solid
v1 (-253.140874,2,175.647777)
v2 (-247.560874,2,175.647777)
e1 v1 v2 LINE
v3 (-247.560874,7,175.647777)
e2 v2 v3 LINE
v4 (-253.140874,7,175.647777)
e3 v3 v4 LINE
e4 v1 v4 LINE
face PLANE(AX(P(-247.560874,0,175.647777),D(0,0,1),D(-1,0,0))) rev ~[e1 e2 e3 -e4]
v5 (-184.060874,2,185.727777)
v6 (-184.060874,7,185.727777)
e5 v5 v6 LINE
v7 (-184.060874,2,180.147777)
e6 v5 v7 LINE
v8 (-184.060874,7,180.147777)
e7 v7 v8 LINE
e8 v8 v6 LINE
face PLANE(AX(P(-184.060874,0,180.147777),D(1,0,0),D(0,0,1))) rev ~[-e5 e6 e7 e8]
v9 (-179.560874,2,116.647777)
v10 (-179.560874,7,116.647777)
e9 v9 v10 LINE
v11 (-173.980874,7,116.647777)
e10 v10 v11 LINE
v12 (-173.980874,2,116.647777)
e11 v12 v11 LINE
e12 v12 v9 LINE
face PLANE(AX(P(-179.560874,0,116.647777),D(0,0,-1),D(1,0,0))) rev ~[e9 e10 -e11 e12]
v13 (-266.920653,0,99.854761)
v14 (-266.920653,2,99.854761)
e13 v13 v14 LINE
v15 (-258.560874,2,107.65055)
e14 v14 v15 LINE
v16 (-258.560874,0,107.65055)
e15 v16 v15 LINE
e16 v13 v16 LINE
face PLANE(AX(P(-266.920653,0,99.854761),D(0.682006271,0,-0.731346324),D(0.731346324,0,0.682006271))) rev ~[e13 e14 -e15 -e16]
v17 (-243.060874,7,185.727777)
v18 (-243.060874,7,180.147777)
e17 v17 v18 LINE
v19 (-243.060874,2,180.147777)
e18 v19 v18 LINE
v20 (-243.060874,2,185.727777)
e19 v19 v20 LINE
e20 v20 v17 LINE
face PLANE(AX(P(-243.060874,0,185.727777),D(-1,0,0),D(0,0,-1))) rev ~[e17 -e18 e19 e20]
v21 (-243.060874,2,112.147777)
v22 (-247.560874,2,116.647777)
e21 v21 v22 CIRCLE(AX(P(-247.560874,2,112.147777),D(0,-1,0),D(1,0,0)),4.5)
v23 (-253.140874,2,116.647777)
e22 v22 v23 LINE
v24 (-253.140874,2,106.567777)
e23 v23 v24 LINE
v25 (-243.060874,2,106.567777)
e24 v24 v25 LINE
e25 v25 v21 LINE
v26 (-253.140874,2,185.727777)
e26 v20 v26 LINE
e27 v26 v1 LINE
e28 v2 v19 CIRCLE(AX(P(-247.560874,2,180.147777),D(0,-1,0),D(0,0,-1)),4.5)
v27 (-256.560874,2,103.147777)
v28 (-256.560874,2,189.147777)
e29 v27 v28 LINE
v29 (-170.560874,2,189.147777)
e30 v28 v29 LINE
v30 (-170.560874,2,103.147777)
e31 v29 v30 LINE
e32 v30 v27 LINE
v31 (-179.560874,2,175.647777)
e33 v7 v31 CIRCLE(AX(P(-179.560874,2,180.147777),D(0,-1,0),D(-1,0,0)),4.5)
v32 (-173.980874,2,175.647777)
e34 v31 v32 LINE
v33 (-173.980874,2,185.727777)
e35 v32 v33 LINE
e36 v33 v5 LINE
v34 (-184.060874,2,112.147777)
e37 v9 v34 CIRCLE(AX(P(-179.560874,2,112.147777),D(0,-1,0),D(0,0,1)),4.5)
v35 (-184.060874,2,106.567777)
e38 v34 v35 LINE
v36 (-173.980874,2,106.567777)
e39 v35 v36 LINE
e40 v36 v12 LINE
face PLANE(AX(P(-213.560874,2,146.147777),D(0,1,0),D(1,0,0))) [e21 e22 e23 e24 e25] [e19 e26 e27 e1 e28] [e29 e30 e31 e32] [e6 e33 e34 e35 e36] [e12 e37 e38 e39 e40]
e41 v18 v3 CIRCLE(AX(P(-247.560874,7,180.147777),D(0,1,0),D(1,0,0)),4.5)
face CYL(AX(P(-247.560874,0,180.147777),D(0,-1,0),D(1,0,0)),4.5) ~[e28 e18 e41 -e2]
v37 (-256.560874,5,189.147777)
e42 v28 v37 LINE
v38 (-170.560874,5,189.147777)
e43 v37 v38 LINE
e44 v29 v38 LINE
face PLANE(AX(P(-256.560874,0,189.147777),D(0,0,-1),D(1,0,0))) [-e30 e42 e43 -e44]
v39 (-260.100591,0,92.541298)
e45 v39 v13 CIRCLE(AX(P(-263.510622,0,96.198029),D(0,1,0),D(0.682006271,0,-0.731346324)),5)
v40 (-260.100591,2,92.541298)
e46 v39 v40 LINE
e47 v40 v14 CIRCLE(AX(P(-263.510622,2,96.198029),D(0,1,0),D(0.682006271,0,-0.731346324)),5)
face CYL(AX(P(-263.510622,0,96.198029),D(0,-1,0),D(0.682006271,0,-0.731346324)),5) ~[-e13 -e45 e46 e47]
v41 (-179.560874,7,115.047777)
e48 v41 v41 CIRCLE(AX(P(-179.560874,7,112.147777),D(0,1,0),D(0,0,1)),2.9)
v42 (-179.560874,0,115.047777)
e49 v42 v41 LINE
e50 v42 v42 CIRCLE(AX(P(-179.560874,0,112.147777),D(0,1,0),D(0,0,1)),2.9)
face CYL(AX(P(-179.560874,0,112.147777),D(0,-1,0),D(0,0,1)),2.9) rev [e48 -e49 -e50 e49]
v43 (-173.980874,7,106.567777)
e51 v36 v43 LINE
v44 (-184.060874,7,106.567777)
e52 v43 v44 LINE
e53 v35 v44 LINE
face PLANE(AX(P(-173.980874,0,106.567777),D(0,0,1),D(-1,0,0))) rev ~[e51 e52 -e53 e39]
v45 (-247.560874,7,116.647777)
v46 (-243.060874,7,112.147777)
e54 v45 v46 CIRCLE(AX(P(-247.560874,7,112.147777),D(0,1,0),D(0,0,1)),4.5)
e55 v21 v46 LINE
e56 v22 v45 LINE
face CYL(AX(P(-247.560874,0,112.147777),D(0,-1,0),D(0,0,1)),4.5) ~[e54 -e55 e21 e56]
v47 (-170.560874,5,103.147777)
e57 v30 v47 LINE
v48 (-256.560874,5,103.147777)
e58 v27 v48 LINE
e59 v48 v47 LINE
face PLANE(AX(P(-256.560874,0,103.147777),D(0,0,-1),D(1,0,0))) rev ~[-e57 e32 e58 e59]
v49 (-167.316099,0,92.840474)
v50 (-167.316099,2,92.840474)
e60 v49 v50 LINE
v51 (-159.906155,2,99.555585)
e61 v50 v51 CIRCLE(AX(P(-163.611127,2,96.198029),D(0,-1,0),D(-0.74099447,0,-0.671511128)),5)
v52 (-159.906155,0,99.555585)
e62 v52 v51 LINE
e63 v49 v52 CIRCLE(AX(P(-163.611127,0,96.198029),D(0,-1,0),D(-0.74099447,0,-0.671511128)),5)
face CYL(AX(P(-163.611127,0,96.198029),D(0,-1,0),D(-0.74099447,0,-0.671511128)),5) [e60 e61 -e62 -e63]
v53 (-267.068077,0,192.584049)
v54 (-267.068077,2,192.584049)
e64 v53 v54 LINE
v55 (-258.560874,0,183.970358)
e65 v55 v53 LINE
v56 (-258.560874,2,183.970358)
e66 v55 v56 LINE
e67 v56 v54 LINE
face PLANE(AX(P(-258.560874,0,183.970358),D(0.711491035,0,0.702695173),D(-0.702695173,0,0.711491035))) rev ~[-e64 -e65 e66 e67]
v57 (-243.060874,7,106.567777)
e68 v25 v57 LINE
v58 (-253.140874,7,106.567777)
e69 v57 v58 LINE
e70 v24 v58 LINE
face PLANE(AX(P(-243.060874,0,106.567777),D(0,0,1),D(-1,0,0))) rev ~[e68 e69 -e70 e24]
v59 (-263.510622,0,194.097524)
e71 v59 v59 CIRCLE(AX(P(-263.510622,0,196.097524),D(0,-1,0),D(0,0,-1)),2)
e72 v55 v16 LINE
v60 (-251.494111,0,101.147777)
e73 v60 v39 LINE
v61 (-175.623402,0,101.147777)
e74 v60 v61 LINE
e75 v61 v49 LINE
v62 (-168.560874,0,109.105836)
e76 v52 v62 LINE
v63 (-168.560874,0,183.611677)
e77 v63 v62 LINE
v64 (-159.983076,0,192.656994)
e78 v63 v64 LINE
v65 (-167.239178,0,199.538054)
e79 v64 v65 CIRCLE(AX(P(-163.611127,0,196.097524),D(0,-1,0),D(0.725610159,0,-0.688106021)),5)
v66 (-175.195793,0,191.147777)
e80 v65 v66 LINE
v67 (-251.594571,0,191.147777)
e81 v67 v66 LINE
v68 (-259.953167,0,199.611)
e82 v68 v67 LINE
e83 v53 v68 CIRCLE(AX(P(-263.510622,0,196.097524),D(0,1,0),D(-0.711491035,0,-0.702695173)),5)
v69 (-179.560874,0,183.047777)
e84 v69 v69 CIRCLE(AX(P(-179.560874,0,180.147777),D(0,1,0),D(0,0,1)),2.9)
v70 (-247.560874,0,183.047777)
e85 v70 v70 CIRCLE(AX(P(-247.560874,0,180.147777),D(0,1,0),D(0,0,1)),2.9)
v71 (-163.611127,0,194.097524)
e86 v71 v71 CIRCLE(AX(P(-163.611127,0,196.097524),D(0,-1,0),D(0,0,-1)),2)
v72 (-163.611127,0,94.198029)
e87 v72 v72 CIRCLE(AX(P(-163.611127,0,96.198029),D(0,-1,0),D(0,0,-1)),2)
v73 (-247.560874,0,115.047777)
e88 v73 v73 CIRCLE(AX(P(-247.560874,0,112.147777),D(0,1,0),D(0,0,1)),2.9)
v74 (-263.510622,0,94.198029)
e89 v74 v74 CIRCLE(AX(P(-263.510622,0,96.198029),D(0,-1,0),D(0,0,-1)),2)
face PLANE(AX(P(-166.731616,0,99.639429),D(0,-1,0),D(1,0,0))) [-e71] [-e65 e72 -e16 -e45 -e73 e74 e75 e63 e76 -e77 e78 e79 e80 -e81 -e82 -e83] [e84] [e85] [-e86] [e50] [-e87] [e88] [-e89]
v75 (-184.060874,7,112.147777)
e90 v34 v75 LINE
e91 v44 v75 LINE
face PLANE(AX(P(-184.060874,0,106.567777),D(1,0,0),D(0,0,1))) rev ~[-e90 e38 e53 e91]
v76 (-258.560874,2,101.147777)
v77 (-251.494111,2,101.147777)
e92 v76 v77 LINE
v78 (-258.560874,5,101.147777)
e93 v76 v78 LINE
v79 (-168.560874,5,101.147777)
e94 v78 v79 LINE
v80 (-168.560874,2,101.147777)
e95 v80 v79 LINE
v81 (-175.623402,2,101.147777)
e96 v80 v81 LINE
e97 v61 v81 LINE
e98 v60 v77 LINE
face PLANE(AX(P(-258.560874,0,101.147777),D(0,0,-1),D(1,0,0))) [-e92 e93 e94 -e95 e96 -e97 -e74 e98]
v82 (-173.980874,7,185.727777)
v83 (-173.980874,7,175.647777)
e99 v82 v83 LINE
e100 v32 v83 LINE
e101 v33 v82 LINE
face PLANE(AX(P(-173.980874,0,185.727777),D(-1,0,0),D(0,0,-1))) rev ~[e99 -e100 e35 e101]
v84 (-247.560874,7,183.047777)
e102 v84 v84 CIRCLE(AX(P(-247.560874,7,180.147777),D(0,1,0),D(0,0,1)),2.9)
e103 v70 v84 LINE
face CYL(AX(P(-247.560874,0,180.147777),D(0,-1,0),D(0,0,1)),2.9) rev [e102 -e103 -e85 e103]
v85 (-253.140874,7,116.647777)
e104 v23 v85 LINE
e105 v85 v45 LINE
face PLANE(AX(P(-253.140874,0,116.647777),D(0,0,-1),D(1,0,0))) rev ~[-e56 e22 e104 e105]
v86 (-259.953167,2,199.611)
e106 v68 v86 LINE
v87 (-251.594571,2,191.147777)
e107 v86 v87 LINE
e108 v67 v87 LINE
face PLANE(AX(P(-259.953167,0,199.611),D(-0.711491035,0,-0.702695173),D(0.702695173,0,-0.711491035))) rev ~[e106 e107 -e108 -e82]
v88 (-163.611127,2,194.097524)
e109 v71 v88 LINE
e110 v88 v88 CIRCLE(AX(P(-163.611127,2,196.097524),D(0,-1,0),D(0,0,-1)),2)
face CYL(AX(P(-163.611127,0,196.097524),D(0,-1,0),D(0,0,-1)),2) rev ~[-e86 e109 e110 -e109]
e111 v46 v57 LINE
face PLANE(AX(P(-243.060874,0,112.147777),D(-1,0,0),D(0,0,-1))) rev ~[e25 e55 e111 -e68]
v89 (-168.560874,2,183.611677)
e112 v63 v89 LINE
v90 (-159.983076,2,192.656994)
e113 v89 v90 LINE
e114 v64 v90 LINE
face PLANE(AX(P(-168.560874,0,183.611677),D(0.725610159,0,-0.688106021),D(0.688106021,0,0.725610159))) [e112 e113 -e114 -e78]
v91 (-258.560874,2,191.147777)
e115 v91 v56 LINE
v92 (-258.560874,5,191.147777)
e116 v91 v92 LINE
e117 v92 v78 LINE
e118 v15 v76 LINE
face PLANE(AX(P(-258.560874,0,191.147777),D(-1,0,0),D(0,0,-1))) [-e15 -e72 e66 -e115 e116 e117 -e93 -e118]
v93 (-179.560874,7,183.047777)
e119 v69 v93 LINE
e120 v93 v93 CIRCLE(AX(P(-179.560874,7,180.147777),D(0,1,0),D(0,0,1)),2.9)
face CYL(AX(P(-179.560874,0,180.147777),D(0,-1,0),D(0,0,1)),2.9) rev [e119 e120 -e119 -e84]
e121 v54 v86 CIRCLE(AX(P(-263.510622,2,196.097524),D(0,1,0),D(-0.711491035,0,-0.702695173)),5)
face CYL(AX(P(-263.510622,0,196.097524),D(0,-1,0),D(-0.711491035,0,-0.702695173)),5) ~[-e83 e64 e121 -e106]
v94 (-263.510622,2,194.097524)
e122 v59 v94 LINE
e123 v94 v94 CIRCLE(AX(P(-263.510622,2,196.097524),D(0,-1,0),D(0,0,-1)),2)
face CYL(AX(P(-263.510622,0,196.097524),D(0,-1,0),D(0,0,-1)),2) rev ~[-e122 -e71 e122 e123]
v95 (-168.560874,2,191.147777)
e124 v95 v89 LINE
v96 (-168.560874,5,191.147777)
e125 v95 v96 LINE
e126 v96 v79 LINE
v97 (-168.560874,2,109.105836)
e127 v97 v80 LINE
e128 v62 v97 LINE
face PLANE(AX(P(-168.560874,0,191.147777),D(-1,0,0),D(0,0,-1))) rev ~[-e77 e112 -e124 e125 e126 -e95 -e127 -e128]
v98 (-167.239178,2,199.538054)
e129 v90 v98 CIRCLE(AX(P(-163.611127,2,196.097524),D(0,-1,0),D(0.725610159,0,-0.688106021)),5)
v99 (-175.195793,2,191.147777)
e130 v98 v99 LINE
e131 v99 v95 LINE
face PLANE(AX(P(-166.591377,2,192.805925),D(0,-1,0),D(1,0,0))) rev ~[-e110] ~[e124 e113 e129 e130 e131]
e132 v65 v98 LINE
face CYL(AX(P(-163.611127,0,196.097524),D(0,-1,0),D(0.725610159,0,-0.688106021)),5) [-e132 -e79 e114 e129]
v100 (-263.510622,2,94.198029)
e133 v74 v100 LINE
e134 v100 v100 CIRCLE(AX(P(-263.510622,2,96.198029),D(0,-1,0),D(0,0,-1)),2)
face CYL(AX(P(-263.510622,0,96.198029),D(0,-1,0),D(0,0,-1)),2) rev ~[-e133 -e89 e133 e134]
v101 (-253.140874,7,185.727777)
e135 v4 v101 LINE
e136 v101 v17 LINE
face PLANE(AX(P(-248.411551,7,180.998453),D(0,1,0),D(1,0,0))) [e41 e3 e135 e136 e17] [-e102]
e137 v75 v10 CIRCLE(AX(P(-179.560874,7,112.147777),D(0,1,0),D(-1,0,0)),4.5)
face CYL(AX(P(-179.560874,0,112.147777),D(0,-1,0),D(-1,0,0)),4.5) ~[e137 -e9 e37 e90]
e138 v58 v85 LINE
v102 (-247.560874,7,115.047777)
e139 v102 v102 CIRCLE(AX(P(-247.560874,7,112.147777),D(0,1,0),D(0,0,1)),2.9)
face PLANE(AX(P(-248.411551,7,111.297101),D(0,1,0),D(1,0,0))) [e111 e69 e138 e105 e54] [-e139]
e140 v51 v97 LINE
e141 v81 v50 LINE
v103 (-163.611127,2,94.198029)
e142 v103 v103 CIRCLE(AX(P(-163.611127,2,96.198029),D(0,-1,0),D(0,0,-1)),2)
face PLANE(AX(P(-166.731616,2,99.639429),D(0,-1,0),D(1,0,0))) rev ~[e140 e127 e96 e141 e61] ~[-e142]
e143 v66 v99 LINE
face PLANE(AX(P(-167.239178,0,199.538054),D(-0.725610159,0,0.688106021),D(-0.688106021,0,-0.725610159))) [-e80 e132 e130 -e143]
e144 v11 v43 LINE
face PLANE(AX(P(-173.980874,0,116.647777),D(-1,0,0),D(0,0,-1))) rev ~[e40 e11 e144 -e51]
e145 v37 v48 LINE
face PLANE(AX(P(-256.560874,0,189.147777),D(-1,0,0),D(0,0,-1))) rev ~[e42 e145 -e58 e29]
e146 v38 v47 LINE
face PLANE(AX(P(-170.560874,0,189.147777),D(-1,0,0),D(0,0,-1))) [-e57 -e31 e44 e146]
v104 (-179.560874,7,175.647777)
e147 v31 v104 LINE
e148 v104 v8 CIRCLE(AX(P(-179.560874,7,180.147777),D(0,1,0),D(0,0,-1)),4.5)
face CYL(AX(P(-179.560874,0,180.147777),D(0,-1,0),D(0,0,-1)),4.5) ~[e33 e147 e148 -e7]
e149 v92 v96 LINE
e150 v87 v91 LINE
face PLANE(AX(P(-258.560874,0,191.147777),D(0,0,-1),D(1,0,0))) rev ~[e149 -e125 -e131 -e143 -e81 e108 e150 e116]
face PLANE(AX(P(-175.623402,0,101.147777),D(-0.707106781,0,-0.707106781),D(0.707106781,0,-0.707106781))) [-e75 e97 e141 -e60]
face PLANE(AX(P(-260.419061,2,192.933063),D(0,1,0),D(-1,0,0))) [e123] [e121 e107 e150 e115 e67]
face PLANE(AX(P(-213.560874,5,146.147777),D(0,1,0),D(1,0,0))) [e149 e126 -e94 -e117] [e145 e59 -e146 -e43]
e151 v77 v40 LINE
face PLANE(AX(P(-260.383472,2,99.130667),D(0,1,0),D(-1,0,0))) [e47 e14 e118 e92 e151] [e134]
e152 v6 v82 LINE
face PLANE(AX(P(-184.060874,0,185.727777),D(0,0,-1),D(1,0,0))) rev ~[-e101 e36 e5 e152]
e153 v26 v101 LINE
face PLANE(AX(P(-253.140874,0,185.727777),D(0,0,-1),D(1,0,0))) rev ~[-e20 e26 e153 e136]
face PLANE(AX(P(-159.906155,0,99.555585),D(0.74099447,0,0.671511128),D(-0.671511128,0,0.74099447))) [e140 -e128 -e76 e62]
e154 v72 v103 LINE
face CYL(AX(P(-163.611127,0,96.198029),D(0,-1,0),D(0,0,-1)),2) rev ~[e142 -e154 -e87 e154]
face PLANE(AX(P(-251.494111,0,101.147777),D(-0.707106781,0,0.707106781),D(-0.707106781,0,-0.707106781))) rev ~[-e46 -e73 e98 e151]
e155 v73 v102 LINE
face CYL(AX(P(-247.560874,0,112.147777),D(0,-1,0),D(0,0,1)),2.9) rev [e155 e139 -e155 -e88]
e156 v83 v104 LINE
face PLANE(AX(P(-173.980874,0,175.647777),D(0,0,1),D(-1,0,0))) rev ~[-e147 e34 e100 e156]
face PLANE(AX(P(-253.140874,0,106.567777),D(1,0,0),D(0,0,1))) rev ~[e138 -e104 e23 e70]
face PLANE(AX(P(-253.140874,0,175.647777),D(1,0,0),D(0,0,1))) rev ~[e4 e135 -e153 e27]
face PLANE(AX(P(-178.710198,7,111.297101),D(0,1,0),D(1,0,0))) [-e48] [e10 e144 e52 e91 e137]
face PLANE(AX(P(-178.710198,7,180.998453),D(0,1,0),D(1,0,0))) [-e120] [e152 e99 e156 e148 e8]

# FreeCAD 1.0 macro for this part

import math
import FreeCAD as App
import Part
import Sketcher
Q = App.Units.Quantity


def add_polygon(sketch, points):
    """Adds a closed chain of lines whose ends are joined by coincident constraints."""
    first, n = sketch.GeometryCount, len(points)
    for a, b in zip(points, points[1:] + points[:1]):
        sketch.addGeometry(Part.LineSegment(App.Vector(*a, 0), App.Vector(*b, 0)), False)
    for i in range(n):
        sketch.addConstraint(Sketcher.Constraint("Coincident", first + i, 2, first + (i + 1) % n, 1))

doc = App.newDocument("Part")
body = doc.addObject("PartDesign::Body", "Body")

# Sketch on XZ plane
sketch1 = body.newObject("Sketcher::SketchObject", "Sketch")
sketch1.AttachmentSupport = (doc.getObject("XZ_Plane"), [""])
sketch1.MapMode = "FlatFace"
add_polygon(sketch1, [(-258.560874, 101.147777), (-258.560874, 191.147777), (-168.560874, 191.147777), (-168.560874, 101.147777)])  # lines 0-3
add_polygon(sketch1, [(-170.560874, 189.147777), (-256.560874, 189.147777), (-256.560874, 103.147777), (-170.560874, 103.147777)])  # lines 4-7
sketch1.addConstraint([
    Sketcher.Constraint("Vertical", 0),
    Sketcher.Constraint("Horizontal", 1),
    Sketcher.Constraint("Vertical", 2),
    Sketcher.Constraint("Horizontal", 3),
    Sketcher.Constraint("Horizontal", 4),
    Sketcher.Constraint("Vertical", 5),
    Sketcher.Constraint("Horizontal", 6),
    Sketcher.Constraint("Vertical", 7),
    Sketcher.Constraint("Equal", 3, 0),
    Sketcher.Constraint("Equal", 6, 5),
    Sketcher.Constraint("DistanceX", 1, 1, 1, 2, Q("90 mm")),
    Sketcher.Constraint("DistanceX", 4, 2, 4, 1, Q("86 mm")),
    Sketcher.Constraint("DistanceX", 0, 2, 4, 2, Q("2 mm")),
    Sketcher.Constraint("DistanceY", 4, 2, 0, 2, Q("2 mm")),
    Sketcher.Constraint("DistanceX", 0, 2, -1, 1, Q("258.560874 mm")),
    Sketcher.Constraint("DistanceY", -1, 1, 0, 2, Q("191.147777 mm")),
])
pad1 = body.newObject("PartDesign::Pad", "Pad")
pad1.Profile = sketch1
pad1.Length = 5
pad1.Reversed = True

# Sketch on XZ plane
sketch2 = body.newObject("Sketcher::SketchObject", "Sketch001")
sketch2.AttachmentSupport = (doc.getObject("XZ_Plane"), [""])
sketch2.MapMode = "FlatFace"
add_polygon(sketch2, [(-170.560874, 189.147777), (-170.560874, 103.147777), (-256.560874, 103.147777), (-256.560874, 189.147777)])  # lines 0-3
add_polygon(sketch2, [(-173.980874, 106.567777), (-173.980874, 185.727777), (-253.140874, 185.727777), (-253.140874, 106.567777)])  # lines 4-7
sketch2.addConstraint([
    Sketcher.Constraint("Vertical", 0),
    Sketcher.Constraint("Horizontal", 1),
    Sketcher.Constraint("Vertical", 2),
    Sketcher.Constraint("Horizontal", 3),
    Sketcher.Constraint("Vertical", 4),
    Sketcher.Constraint("Horizontal", 5),
    Sketcher.Constraint("Vertical", 6),
    Sketcher.Constraint("Horizontal", 7),
    Sketcher.Constraint("Equal", 3, 0),
    Sketcher.Constraint("Equal", 7, 4),
    Sketcher.Constraint("DistanceX", 1, 2, 1, 1, Q("86 mm")),
    Sketcher.Constraint("DistanceX", 5, 2, 5, 1, Q("79.16 mm")),
    Sketcher.Constraint("DistanceX", 4, 2, 3, 2, Q("3.42 mm")),
    Sketcher.Constraint("DistanceY", 4, 2, 3, 2, Q("3.42 mm")),
    Sketcher.Constraint("DistanceX", 0, 2, -1, 1, Q("170.560874 mm")),
    Sketcher.Constraint("DistanceY", -1, 1, 0, 2, Q("103.147777 mm")),
])
pad2 = body.newObject("PartDesign::Pad", "Pad001")
pad2.Profile = sketch2
pad2.Length = 2
pad2.Reversed = True

# Sketch on XZ plane
sketch3 = body.newObject("Sketcher::SketchObject", "Sketch002")
sketch3.AttachmentSupport = (doc.getObject("XZ_Plane"), [""])
sketch3.MapMode = "FlatFace"
sketch3.addGeometry([
    Part.LineSegment(App.Vector(-173.980874, 185.727777, 0), App.Vector(-173.980874, 175.647777, 0)),  # 0
    Part.LineSegment(App.Vector(-173.980874, 175.647777, 0), App.Vector(-179.560874, 175.647777, 0)),  # 1
    Part.ArcOfCircle(Part.Circle(App.Vector(-179.560874, 180.147777, 0), App.Vector(0, 0, 1), 4.5), math.radians(180), math.radians(270)),  # 2
    Part.LineSegment(App.Vector(-184.060874, 180.147777, 0), App.Vector(-184.060874, 185.727777, 0)),  # 3
    Part.LineSegment(App.Vector(-184.060874, 185.727777, 0), App.Vector(-173.980874, 185.727777, 0)),  # 4
    Part.Circle(App.Vector(-179.560874, 180.147777, 0), App.Vector(0, 0, 1), 2.9),  # 5
    Part.LineSegment(App.Vector(-173.980874, 116.647777, 0), App.Vector(-173.980874, 106.567777, 0)),  # 6
    Part.LineSegment(App.Vector(-173.980874, 106.567777, 0), App.Vector(-184.060874, 106.567777, 0)),  # 7
    Part.LineSegment(App.Vector(-184.060874, 106.567777, 0), App.Vector(-184.060874, 112.147777, 0)),  # 8
    Part.ArcOfCircle(Part.Circle(App.Vector(-179.560874, 112.147777, 0), App.Vector(0, 0, 1), 4.5), math.radians(90), math.radians(180)),  # 9
    Part.LineSegment(App.Vector(-179.560874, 116.647777, 0), App.Vector(-173.980874, 116.647777, 0)),  # 10
    Part.Circle(App.Vector(-179.560874, 112.147777, 0), App.Vector(0, 0, 1), 2.9),  # 11
    Part.LineSegment(App.Vector(-253.140874, 185.727777, 0), App.Vector(-243.060874, 185.727777, 0)),  # 12
    Part.LineSegment(App.Vector(-243.060874, 185.727777, 0), App.Vector(-243.060874, 180.147777, 0)),  # 13
    Part.ArcOfCircle(Part.Circle(App.Vector(-247.560874, 180.147777, 0), App.Vector(0, 0, 1), 4.5), math.radians(-90), math.radians(0)),  # 14
    Part.LineSegment(App.Vector(-247.560874, 175.647777, 0), App.Vector(-253.140874, 175.647777, 0)),  # 15
    Part.LineSegment(App.Vector(-253.140874, 175.647777, 0), App.Vector(-253.140874, 185.727777, 0)),  # 16
    Part.Circle(App.Vector(-247.560874, 180.147777, 0), App.Vector(0, 0, 1), 2.9),  # 17
    Part.LineSegment(App.Vector(-243.060874, 106.567777, 0), App.Vector(-253.140874, 106.567777, 0)),  # 18
    Part.LineSegment(App.Vector(-253.140874, 106.567777, 0), App.Vector(-253.140874, 116.647777, 0)),  # 19
    Part.LineSegment(App.Vector(-253.140874, 116.647777, 0), App.Vector(-247.560874, 116.647777, 0)),  # 20
    Part.ArcOfCircle(Part.Circle(App.Vector(-247.560874, 112.147777, 0), App.Vector(0, 0, 1), 4.5), math.radians(0), math.radians(90)),  # 21
    Part.LineSegment(App.Vector(-243.060874, 112.147777, 0), App.Vector(-243.060874, 106.567777, 0)),  # 22
    Part.Circle(App.Vector(-247.560874, 112.147777, 0), App.Vector(0, 0, 1), 2.9),  # 23
], False)
sketch3.addConstraint([
    Sketcher.Constraint("Coincident", 0, 2, 1, 1),
    Sketcher.Constraint("Tangent", 1, 2, 2, 2),
    Sketcher.Constraint("Tangent", 2, 1, 3, 1),
    Sketcher.Constraint("Coincident", 3, 2, 4, 1),
    Sketcher.Constraint("Coincident", 4, 2, 0, 1),
    Sketcher.Constraint("Coincident", 6, 2, 7, 1),
    Sketcher.Constraint("Coincident", 7, 2, 8, 1),
    Sketcher.Constraint("Tangent", 8, 2, 9, 2),
    Sketcher.Constraint("Tangent", 9, 1, 10, 1),
    Sketcher.Constraint("Coincident", 10, 2, 6, 1),
    Sketcher.Constraint("Coincident", 12, 2, 13, 1),
    Sketcher.Constraint("Tangent", 13, 2, 14, 2),
    Sketcher.Constraint("Tangent", 14, 1, 15, 1),
    Sketcher.Constraint("Coincident", 15, 2, 16, 1),
    Sketcher.Constraint("Coincident", 16, 2, 12, 1),
    Sketcher.Constraint("Coincident", 18, 2, 19, 1),
    Sketcher.Constraint("Coincident", 19, 2, 20, 1),
    Sketcher.Constraint("Tangent", 20, 2, 21, 2),
    Sketcher.Constraint("Tangent", 21, 1, 22, 1),
    Sketcher.Constraint("Coincident", 22, 2, 18, 1),
    Sketcher.Constraint("Vertical", 0),
    Sketcher.Constraint("Horizontal", 1),
    Sketcher.Constraint("Vertical", 3),
    Sketcher.Constraint("Horizontal", 4),
    Sketcher.Constraint("Vertical", 6),
    Sketcher.Constraint("Horizontal", 7),
    Sketcher.Constraint("Vertical", 8),
    Sketcher.Constraint("Horizontal", 10),
    Sketcher.Constraint("Horizontal", 12),
    Sketcher.Constraint("Vertical", 13),
    Sketcher.Constraint("Horizontal", 15),
    Sketcher.Constraint("Vertical", 16),
    Sketcher.Constraint("Horizontal", 18),
    Sketcher.Constraint("Vertical", 19),
    Sketcher.Constraint("Horizontal", 20),
    Sketcher.Constraint("Vertical", 22),
    Sketcher.Constraint("Coincident", 5, 3, 2, 3),
    Sketcher.Constraint("Coincident", 11, 3, 9, 3),
    Sketcher.Constraint("Coincident", 17, 3, 14, 3),
    Sketcher.Constraint("Coincident", 23, 3, 21, 3),
    Sketcher.Constraint("Equal", 2, 9),
    Sketcher.Constraint("Equal", 5, 11),
    Sketcher.Constraint("Equal", 9, 14),
    Sketcher.Constraint("Equal", 11, 17),
    Sketcher.Constraint("Equal", 14, 21),
    Sketcher.Constraint("Equal", 17, 23),
    Sketcher.Constraint("Horizontal", 5, 3, 14, 3),
    Sketcher.Constraint("Horizontal", 11, 3, 21, 3),
    Sketcher.Constraint("Horizontal", 4, 2, 12, 2),
    Sketcher.Constraint("Horizontal", 7, 2, 18, 2),
    Sketcher.Constraint("Vertical", 5, 3, 9, 3),
    Sketcher.Constraint("Vertical", 17, 3, 21, 3),
    Sketcher.Constraint("Vertical", 4, 2, 6, 2),
    Sketcher.Constraint("Vertical", 16, 2, 18, 2),
    Sketcher.Constraint("Equal", 7, 12),
    Sketcher.Constraint("Equal", 18, 0),
    Sketcher.Constraint("Equal", 0, 6),
    Sketcher.Constraint("Diameter", 5, Q("5.8 mm")),
    Sketcher.Constraint("Radius", 2, Q("4.5 mm")),
    Sketcher.Constraint("DistanceY", 9, 3, 2, 3, Q("68 mm")),
    Sketcher.Constraint("DistanceX", 14, 3, 2, 3, Q("68 mm")),
    Sketcher.Constraint("DistanceX", 1, 2, 1, 1, Q("5.58 mm")),
    Sketcher.Constraint("DistanceX", 2, 3, -1, 1, Q("179.560874 mm")),
    Sketcher.Constraint("DistanceY", -1, 1, 2, 3, Q("180.147777 mm")),
])
pad3 = body.newObject("PartDesign::Pad", "Pad002")
pad3.Profile = sketch3
pad3.Length = 7
pad3.Reversed = True

# Sketch on XZ plane
sketch4 = body.newObject("Sketcher::SketchObject", "Sketch003")
sketch4.AttachmentSupport = (doc.getObject("XZ_Plane"), [""])
sketch4.MapMode = "FlatFace"
sketch4.addGeometry([
    Part.LineSegment(App.Vector(-243.060874, 106.567777, 0), App.Vector(-243.060874, 112.147777, 0)),  # 0
    Part.ArcOfCircle(Part.Circle(App.Vector(-247.560874, 112.147777, 0), App.Vector(0, 0, 1), 4.5), math.radians(0), math.radians(90)),  # 1
    Part.LineSegment(App.Vector(-247.560874, 116.647777, 0), App.Vector(-253.140874, 116.647777, 0)),  # 2
    Part.LineSegment(App.Vector(-253.140874, 116.647777, 0), App.Vector(-253.140874, 175.647777, 0)),  # 3
    Part.LineSegment(App.Vector(-253.140874, 175.647777, 0), App.Vector(-247.560874, 175.647777, 0)),  # 4
    Part.ArcOfCircle(Part.Circle(App.Vector(-247.560874, 180.147777, 0), App.Vector(0, 0, 1), 4.5), math.radians(-90), math.radians(0)),  # 5
    Part.LineSegment(App.Vector(-243.060874, 180.147777, 0), App.Vector(-243.060874, 185.727777, 0)),  # 6
    Part.LineSegment(App.Vector(-243.060874, 185.727777, 0), App.Vector(-184.060874, 185.727777, 0)),  # 7
    Part.LineSegment(App.Vector(-184.060874, 185.727777, 0), App.Vector(-184.060874, 180.147777, 0)),  # 8
    Part.ArcOfCircle(Part.Circle(App.Vector(-179.560874, 180.147777, 0), App.Vector(0, 0, 1), 4.5), math.radians(180), math.radians(270)),  # 9
    Part.LineSegment(App.Vector(-179.560874, 175.647777, 0), App.Vector(-173.980874, 175.647777, 0)),  # 10
    Part.LineSegment(App.Vector(-173.980874, 175.647777, 0), App.Vector(-173.980874, 116.647777, 0)),  # 11
    Part.LineSegment(App.Vector(-173.980874, 116.647777, 0), App.Vector(-179.560874, 116.647777, 0)),  # 12
    Part.ArcOfCircle(Part.Circle(App.Vector(-179.560874, 112.147777, 0), App.Vector(0, 0, 1), 4.5), math.radians(90), math.radians(180)),  # 13
    Part.LineSegment(App.Vector(-184.060874, 112.147777, 0), App.Vector(-184.060874, 106.567777, 0)),  # 14
    Part.LineSegment(App.Vector(-184.060874, 106.567777, 0), App.Vector(-243.060874, 106.567777, 0)),  # 15
], False)
sketch4.addConstraint([
    Sketcher.Constraint("Tangent", 0, 2, 1, 1),
    Sketcher.Constraint("Tangent", 1, 2, 2, 1),
    Sketcher.Constraint("Coincident", 2, 2, 3, 1),
    Sketcher.Constraint("Coincident", 3, 2, 4, 1),
    Sketcher.Constraint("Tangent", 4, 2, 5, 1),
    Sketcher.Constraint("Tangent", 5, 2, 6, 1),
    Sketcher.Constraint("Coincident", 6, 2, 7, 1),
    Sketcher.Constraint("Coincident", 7, 2, 8, 1),
    Sketcher.Constraint("Tangent", 8, 2, 9, 1),
    Sketcher.Constraint("Tangent", 9, 2, 10, 1),
    Sketcher.Constraint("Coincident", 10, 2, 11, 1),
    Sketcher.Constraint("Coincident", 11, 2, 12, 1),
    Sketcher.Constraint("Tangent", 12, 2, 13, 1),
    Sketcher.Constraint("Tangent", 13, 2, 14, 1),
    Sketcher.Constraint("Coincident", 14, 2, 15, 1),
    Sketcher.Constraint("Coincident", 15, 2, 0, 1),
    Sketcher.Constraint("Vertical", 0),
    Sketcher.Constraint("Horizontal", 2),
    Sketcher.Constraint("Vertical", 3),
    Sketcher.Constraint("Horizontal", 4),
    Sketcher.Constraint("Vertical", 6),
    Sketcher.Constraint("Horizontal", 7),
    Sketcher.Constraint("Vertical", 8),
    Sketcher.Constraint("Horizontal", 10),
    Sketcher.Constraint("Vertical", 11),
    Sketcher.Constraint("Horizontal", 12),
    Sketcher.Constraint("Vertical", 14),
    Sketcher.Constraint("Horizontal", 15),
    Sketcher.Constraint("Equal", 1, 5),
    Sketcher.Constraint("Equal", 5, 9),
    Sketcher.Constraint("Equal", 9, 13),
    Sketcher.Constraint("Horizontal", 5, 3, 9, 3),
    Sketcher.Constraint("Horizontal", 1, 3, 13, 3),
    Sketcher.Constraint("Vertical", 1, 3, 5, 3),
    Sketcher.Constraint("Vertical", 9, 3, 13, 3),
    Sketcher.Constraint("Equal", 4, 10),
    Sketcher.Constraint("Equal", 12, 0),
    Sketcher.Constraint("Equal", 15, 3),
    Sketcher.Constraint("Equal", 0, 6),
    Sketcher.Constraint("Radius", 1, Q("4.5 mm")),
    Sketcher.Constraint("DistanceX", 7, 1, 7, 2, Q("59 mm")),
    Sketcher.Constraint("DistanceX", 2, 2, 2, 1, Q("5.58 mm")),
    Sketcher.Constraint("DistanceX", 1, 3, -1, 1, Q("247.560874 mm")),
    Sketcher.Constraint("DistanceY", -1, 1, 1, 3, Q("112.147777 mm")),
])
pad4 = body.newObject("PartDesign::Pad", "Pad003")
pad4.Profile = sketch4
pad4.Length = 2
pad4.Reversed = True

# Sketch on XZ plane
sketch5 = body.newObject("Sketcher::SketchObject", "Sketch004")
sketch5.AttachmentSupport = (doc.getObject("XZ_Plane"), [""])
sketch5.MapMode = "FlatFace"
sketch5.addGeometry([
    Part.LineSegment(App.Vector(-159.906155, 99.555585, 0), App.Vector(-168.560874, 109.105836, 0)),  # 0
    Part.LineSegment(App.Vector(-168.560874, 109.105836, 0), App.Vector(-168.560874, 101.147777, 0)),  # 1
    Part.LineSegment(App.Vector(-168.560874, 101.147777, 0), App.Vector(-175.623402, 101.147777, 0)),  # 2
    Part.LineSegment(App.Vector(-175.623402, 101.147777, 0), App.Vector(-167.316099, 92.840474, 0)),  # 3
    Part.ArcOfCircle(Part.Circle(App.Vector(-163.611127, 96.198029, 0), App.Vector(0, 0, 1), 5), math.radians(-137.816198), math.radians(42.183802)),  # 4
    Part.Circle(App.Vector(-163.611127, 96.198029, 0), App.Vector(0, 0, 1), 2),  # 5
    Part.LineSegment(App.Vector(-258.560874, 107.65055, 0), App.Vector(-266.920653, 99.854761, 0)),  # 6
    Part.ArcOfCircle(Part.Circle(App.Vector(-263.510622, 96.198029, 0), App.Vector(0, 0, 1), 5), math.radians(133.00062), math.radians(313.00062)),  # 7
    Part.LineSegment(App.Vector(-260.100591, 92.541298, 0), App.Vector(-251.494111, 101.147777, 0)),  # 8
    Part.LineSegment(App.Vector(-251.494111, 101.147777, 0), App.Vector(-258.560874, 101.147777, 0)),  # 9
    Part.LineSegment(App.Vector(-258.560874, 101.147777, 0), App.Vector(-258.560874, 107.65055, 0)),  # 10
    Part.Circle(App.Vector(-263.510622, 96.198029, 0), App.Vector(0, 0, 1), 2),  # 11
    Part.LineSegment(App.Vector(-251.594571, 191.147777, 0), App.Vector(-259.953167, 199.611, 0)),  # 12
    Part.ArcOfCircle(Part.Circle(App.Vector(-263.510622, 196.097524, 0), App.Vector(0, 0, 1), 5), math.radians(44.64364), math.radians(224.64364)),  # 13
    Part.LineSegment(App.Vector(-267.068077, 192.584049, 0), App.Vector(-258.560874, 183.970358, 0)),  # 14
    Part.LineSegment(App.Vector(-258.560874, 183.970358, 0), App.Vector(-258.560874, 191.147777, 0)),  # 15
    Part.LineSegment(App.Vector(-258.560874, 191.147777, 0), App.Vector(-251.594571, 191.147777, 0)),  # 16
    Part.Circle(App.Vector(-263.510622, 196.097524, 0), App.Vector(0, 0, 1), 2),  # 17
    Part.LineSegment(App.Vector(-167.239178, 199.538054, 0), App.Vector(-175.195793, 191.147777, 0)),  # 18
    Part.LineSegment(App.Vector(-175.195793, 191.147777, 0), App.Vector(-168.560874, 191.147777, 0)),  # 19
    Part.LineSegment(App.Vector(-168.560874, 191.147777, 0), App.Vector(-168.560874, 183.611677, 0)),  # 20
    Part.LineSegment(App.Vector(-168.560874, 183.611677, 0), App.Vector(-159.983076, 192.656994, 0)),  # 21
    Part.ArcOfCircle(Part.Circle(App.Vector(-163.611127, 196.097524, 0), App.Vector(0, 0, 1), 5), math.radians(-43.48037), math.radians(136.51963)),  # 22
    Part.Circle(App.Vector(-163.611127, 196.097524, 0), App.Vector(0, 0, 1), 2),  # 23
], False)
sketch5.addConstraint([
    Sketcher.Constraint("Coincident", 0, 2, 1, 1),
    Sketcher.Constraint("Coincident", 1, 2, 2, 1),
    Sketcher.Constraint("Coincident", 2, 2, 3, 1),
    Sketcher.Constraint("Coincident", 3, 2, 4, 1),
    Sketcher.Constraint("Tangent", 4, 2, 0, 1),
    Sketcher.Constraint("Tangent", 6, 2, 7, 1),
    Sketcher.Constraint("Coincident", 7, 2, 8, 1),
    Sketcher.Constraint("Coincident", 8, 2, 9, 1),
    Sketcher.Constraint("Coincident", 9, 2, 10, 1),
    Sketcher.Constraint("Coincident", 10, 2, 6, 1),
    Sketcher.Constraint("Tangent", 12, 2, 13, 1),
    Sketcher.Constraint("Tangent", 13, 2, 14, 1),
    Sketcher.Constraint("Coincident", 14, 2, 15, 1),
    Sketcher.Constraint("Coincident", 15, 2, 16, 1),
    Sketcher.Constraint("Coincident", 16, 2, 12, 1),
    Sketcher.Constraint("Coincident", 18, 2, 19, 1),
    Sketcher.Constraint("Coincident", 19, 2, 20, 1),
    Sketcher.Constraint("Coincident", 20, 2, 21, 1),
    Sketcher.Constraint("Tangent", 21, 2, 22, 1),
    Sketcher.Constraint("Tangent", 22, 2, 18, 1),
    Sketcher.Constraint("Vertical", 1),
    Sketcher.Constraint("Horizontal", 2),
    Sketcher.Constraint("Horizontal", 9),
    Sketcher.Constraint("Vertical", 10),
    Sketcher.Constraint("Vertical", 15),
    Sketcher.Constraint("Horizontal", 16),
    Sketcher.Constraint("Horizontal", 19),
    Sketcher.Constraint("Vertical", 20),
    Sketcher.Constraint("Coincident", 5, 3, 4, 3),
    Sketcher.Constraint("Coincident", 11, 3, 7, 3),
    Sketcher.Constraint("Coincident", 17, 3, 13, 3),
    Sketcher.Constraint("Coincident", 23, 3, 22, 3),
    Sketcher.Constraint("Equal", 4, 7),
    Sketcher.Constraint("Equal", 5, 11),
    Sketcher.Constraint("Equal", 7, 13),
    Sketcher.Constraint("Equal", 11, 17),
    Sketcher.Constraint("Equal", 13, 22),
    Sketcher.Constraint("Equal", 17, 23),
    Sketcher.Constraint("Perpendicular", 3, 8),
    Sketcher.Constraint("Parallel", 12, 14),
    Sketcher.Constraint("Parallel", 18, 21),
    Sketcher.Constraint("Horizontal", 5, 3, 7, 3),
    Sketcher.Constraint("Horizontal", 17, 3, 22, 3),
    Sketcher.Constraint("Horizontal", 2, 2, 8, 2),
    Sketcher.Constraint("Horizontal", 16, 2, 18, 2),
    Sketcher.Constraint("Vertical", 11, 3, 13, 3),
    Sketcher.Constraint("Vertical", 5, 3, 22, 3),
    Sketcher.Constraint("Vertical", 10, 2, 14, 2),
    Sketcher.Constraint("Vertical", 1, 2, 19, 2),
    Sketcher.Constraint("Diameter", 5, Q("4 mm")),
    Sketcher.Constraint("Radius", 4, Q("5 mm")),
    Sketcher.Constraint("Angle", 3, Q("-45 deg")),
    Sketcher.Constraint("DistanceY", 20, 2, 20, 1, Q("7.5361 mm")),
    Sketcher.Constraint("DistanceY", -1, 1, 12, 2, Q("199.611 mm")),
    Sketcher.Constraint("Distance", 3, Q("11.748301 mm")),
    Sketcher.Constraint("Distance", 8, Q("12.171399 mm")),
    Sketcher.Constraint("DistanceX", 19, 1, 19, 2, Q("6.634918 mm")),
    Sketcher.Constraint("DistanceY", 1, 2, 1, 1, Q("7.958059 mm")),
    Sketcher.Constraint("DistanceY", 15, 1, 15, 2, Q("7.177418 mm")),
    Sketcher.Constraint("DistanceX", 3, 2, -1, 1, Q("167.316099 mm")),
    Sketcher.Constraint("DistanceY", 10, 2, 13, 2, Q("84.933499 mm")),
    Sketcher.Constraint("DistanceX", 19, 2, 21, 2, Q("8.577798 mm")),
    Sketcher.Constraint("Distance", 6, Q("11.43067 mm")),
    Sketcher.Constraint("DistanceX", 2, 2, 2, 1, Q("7.062528 mm")),
    Sketcher.Constraint("DistanceX", 9, 2, 9, 1, Q("7.066763 mm")),
    Sketcher.Constraint("DistanceX", 7, 3, -1, 1, Q("263.510622 mm")),
])
pad5 = body.newObject("PartDesign::Pad", "Pad004")
pad5.Profile = sketch5
pad5.Length = 2
pad5.Reversed = True

doc.recompute()
